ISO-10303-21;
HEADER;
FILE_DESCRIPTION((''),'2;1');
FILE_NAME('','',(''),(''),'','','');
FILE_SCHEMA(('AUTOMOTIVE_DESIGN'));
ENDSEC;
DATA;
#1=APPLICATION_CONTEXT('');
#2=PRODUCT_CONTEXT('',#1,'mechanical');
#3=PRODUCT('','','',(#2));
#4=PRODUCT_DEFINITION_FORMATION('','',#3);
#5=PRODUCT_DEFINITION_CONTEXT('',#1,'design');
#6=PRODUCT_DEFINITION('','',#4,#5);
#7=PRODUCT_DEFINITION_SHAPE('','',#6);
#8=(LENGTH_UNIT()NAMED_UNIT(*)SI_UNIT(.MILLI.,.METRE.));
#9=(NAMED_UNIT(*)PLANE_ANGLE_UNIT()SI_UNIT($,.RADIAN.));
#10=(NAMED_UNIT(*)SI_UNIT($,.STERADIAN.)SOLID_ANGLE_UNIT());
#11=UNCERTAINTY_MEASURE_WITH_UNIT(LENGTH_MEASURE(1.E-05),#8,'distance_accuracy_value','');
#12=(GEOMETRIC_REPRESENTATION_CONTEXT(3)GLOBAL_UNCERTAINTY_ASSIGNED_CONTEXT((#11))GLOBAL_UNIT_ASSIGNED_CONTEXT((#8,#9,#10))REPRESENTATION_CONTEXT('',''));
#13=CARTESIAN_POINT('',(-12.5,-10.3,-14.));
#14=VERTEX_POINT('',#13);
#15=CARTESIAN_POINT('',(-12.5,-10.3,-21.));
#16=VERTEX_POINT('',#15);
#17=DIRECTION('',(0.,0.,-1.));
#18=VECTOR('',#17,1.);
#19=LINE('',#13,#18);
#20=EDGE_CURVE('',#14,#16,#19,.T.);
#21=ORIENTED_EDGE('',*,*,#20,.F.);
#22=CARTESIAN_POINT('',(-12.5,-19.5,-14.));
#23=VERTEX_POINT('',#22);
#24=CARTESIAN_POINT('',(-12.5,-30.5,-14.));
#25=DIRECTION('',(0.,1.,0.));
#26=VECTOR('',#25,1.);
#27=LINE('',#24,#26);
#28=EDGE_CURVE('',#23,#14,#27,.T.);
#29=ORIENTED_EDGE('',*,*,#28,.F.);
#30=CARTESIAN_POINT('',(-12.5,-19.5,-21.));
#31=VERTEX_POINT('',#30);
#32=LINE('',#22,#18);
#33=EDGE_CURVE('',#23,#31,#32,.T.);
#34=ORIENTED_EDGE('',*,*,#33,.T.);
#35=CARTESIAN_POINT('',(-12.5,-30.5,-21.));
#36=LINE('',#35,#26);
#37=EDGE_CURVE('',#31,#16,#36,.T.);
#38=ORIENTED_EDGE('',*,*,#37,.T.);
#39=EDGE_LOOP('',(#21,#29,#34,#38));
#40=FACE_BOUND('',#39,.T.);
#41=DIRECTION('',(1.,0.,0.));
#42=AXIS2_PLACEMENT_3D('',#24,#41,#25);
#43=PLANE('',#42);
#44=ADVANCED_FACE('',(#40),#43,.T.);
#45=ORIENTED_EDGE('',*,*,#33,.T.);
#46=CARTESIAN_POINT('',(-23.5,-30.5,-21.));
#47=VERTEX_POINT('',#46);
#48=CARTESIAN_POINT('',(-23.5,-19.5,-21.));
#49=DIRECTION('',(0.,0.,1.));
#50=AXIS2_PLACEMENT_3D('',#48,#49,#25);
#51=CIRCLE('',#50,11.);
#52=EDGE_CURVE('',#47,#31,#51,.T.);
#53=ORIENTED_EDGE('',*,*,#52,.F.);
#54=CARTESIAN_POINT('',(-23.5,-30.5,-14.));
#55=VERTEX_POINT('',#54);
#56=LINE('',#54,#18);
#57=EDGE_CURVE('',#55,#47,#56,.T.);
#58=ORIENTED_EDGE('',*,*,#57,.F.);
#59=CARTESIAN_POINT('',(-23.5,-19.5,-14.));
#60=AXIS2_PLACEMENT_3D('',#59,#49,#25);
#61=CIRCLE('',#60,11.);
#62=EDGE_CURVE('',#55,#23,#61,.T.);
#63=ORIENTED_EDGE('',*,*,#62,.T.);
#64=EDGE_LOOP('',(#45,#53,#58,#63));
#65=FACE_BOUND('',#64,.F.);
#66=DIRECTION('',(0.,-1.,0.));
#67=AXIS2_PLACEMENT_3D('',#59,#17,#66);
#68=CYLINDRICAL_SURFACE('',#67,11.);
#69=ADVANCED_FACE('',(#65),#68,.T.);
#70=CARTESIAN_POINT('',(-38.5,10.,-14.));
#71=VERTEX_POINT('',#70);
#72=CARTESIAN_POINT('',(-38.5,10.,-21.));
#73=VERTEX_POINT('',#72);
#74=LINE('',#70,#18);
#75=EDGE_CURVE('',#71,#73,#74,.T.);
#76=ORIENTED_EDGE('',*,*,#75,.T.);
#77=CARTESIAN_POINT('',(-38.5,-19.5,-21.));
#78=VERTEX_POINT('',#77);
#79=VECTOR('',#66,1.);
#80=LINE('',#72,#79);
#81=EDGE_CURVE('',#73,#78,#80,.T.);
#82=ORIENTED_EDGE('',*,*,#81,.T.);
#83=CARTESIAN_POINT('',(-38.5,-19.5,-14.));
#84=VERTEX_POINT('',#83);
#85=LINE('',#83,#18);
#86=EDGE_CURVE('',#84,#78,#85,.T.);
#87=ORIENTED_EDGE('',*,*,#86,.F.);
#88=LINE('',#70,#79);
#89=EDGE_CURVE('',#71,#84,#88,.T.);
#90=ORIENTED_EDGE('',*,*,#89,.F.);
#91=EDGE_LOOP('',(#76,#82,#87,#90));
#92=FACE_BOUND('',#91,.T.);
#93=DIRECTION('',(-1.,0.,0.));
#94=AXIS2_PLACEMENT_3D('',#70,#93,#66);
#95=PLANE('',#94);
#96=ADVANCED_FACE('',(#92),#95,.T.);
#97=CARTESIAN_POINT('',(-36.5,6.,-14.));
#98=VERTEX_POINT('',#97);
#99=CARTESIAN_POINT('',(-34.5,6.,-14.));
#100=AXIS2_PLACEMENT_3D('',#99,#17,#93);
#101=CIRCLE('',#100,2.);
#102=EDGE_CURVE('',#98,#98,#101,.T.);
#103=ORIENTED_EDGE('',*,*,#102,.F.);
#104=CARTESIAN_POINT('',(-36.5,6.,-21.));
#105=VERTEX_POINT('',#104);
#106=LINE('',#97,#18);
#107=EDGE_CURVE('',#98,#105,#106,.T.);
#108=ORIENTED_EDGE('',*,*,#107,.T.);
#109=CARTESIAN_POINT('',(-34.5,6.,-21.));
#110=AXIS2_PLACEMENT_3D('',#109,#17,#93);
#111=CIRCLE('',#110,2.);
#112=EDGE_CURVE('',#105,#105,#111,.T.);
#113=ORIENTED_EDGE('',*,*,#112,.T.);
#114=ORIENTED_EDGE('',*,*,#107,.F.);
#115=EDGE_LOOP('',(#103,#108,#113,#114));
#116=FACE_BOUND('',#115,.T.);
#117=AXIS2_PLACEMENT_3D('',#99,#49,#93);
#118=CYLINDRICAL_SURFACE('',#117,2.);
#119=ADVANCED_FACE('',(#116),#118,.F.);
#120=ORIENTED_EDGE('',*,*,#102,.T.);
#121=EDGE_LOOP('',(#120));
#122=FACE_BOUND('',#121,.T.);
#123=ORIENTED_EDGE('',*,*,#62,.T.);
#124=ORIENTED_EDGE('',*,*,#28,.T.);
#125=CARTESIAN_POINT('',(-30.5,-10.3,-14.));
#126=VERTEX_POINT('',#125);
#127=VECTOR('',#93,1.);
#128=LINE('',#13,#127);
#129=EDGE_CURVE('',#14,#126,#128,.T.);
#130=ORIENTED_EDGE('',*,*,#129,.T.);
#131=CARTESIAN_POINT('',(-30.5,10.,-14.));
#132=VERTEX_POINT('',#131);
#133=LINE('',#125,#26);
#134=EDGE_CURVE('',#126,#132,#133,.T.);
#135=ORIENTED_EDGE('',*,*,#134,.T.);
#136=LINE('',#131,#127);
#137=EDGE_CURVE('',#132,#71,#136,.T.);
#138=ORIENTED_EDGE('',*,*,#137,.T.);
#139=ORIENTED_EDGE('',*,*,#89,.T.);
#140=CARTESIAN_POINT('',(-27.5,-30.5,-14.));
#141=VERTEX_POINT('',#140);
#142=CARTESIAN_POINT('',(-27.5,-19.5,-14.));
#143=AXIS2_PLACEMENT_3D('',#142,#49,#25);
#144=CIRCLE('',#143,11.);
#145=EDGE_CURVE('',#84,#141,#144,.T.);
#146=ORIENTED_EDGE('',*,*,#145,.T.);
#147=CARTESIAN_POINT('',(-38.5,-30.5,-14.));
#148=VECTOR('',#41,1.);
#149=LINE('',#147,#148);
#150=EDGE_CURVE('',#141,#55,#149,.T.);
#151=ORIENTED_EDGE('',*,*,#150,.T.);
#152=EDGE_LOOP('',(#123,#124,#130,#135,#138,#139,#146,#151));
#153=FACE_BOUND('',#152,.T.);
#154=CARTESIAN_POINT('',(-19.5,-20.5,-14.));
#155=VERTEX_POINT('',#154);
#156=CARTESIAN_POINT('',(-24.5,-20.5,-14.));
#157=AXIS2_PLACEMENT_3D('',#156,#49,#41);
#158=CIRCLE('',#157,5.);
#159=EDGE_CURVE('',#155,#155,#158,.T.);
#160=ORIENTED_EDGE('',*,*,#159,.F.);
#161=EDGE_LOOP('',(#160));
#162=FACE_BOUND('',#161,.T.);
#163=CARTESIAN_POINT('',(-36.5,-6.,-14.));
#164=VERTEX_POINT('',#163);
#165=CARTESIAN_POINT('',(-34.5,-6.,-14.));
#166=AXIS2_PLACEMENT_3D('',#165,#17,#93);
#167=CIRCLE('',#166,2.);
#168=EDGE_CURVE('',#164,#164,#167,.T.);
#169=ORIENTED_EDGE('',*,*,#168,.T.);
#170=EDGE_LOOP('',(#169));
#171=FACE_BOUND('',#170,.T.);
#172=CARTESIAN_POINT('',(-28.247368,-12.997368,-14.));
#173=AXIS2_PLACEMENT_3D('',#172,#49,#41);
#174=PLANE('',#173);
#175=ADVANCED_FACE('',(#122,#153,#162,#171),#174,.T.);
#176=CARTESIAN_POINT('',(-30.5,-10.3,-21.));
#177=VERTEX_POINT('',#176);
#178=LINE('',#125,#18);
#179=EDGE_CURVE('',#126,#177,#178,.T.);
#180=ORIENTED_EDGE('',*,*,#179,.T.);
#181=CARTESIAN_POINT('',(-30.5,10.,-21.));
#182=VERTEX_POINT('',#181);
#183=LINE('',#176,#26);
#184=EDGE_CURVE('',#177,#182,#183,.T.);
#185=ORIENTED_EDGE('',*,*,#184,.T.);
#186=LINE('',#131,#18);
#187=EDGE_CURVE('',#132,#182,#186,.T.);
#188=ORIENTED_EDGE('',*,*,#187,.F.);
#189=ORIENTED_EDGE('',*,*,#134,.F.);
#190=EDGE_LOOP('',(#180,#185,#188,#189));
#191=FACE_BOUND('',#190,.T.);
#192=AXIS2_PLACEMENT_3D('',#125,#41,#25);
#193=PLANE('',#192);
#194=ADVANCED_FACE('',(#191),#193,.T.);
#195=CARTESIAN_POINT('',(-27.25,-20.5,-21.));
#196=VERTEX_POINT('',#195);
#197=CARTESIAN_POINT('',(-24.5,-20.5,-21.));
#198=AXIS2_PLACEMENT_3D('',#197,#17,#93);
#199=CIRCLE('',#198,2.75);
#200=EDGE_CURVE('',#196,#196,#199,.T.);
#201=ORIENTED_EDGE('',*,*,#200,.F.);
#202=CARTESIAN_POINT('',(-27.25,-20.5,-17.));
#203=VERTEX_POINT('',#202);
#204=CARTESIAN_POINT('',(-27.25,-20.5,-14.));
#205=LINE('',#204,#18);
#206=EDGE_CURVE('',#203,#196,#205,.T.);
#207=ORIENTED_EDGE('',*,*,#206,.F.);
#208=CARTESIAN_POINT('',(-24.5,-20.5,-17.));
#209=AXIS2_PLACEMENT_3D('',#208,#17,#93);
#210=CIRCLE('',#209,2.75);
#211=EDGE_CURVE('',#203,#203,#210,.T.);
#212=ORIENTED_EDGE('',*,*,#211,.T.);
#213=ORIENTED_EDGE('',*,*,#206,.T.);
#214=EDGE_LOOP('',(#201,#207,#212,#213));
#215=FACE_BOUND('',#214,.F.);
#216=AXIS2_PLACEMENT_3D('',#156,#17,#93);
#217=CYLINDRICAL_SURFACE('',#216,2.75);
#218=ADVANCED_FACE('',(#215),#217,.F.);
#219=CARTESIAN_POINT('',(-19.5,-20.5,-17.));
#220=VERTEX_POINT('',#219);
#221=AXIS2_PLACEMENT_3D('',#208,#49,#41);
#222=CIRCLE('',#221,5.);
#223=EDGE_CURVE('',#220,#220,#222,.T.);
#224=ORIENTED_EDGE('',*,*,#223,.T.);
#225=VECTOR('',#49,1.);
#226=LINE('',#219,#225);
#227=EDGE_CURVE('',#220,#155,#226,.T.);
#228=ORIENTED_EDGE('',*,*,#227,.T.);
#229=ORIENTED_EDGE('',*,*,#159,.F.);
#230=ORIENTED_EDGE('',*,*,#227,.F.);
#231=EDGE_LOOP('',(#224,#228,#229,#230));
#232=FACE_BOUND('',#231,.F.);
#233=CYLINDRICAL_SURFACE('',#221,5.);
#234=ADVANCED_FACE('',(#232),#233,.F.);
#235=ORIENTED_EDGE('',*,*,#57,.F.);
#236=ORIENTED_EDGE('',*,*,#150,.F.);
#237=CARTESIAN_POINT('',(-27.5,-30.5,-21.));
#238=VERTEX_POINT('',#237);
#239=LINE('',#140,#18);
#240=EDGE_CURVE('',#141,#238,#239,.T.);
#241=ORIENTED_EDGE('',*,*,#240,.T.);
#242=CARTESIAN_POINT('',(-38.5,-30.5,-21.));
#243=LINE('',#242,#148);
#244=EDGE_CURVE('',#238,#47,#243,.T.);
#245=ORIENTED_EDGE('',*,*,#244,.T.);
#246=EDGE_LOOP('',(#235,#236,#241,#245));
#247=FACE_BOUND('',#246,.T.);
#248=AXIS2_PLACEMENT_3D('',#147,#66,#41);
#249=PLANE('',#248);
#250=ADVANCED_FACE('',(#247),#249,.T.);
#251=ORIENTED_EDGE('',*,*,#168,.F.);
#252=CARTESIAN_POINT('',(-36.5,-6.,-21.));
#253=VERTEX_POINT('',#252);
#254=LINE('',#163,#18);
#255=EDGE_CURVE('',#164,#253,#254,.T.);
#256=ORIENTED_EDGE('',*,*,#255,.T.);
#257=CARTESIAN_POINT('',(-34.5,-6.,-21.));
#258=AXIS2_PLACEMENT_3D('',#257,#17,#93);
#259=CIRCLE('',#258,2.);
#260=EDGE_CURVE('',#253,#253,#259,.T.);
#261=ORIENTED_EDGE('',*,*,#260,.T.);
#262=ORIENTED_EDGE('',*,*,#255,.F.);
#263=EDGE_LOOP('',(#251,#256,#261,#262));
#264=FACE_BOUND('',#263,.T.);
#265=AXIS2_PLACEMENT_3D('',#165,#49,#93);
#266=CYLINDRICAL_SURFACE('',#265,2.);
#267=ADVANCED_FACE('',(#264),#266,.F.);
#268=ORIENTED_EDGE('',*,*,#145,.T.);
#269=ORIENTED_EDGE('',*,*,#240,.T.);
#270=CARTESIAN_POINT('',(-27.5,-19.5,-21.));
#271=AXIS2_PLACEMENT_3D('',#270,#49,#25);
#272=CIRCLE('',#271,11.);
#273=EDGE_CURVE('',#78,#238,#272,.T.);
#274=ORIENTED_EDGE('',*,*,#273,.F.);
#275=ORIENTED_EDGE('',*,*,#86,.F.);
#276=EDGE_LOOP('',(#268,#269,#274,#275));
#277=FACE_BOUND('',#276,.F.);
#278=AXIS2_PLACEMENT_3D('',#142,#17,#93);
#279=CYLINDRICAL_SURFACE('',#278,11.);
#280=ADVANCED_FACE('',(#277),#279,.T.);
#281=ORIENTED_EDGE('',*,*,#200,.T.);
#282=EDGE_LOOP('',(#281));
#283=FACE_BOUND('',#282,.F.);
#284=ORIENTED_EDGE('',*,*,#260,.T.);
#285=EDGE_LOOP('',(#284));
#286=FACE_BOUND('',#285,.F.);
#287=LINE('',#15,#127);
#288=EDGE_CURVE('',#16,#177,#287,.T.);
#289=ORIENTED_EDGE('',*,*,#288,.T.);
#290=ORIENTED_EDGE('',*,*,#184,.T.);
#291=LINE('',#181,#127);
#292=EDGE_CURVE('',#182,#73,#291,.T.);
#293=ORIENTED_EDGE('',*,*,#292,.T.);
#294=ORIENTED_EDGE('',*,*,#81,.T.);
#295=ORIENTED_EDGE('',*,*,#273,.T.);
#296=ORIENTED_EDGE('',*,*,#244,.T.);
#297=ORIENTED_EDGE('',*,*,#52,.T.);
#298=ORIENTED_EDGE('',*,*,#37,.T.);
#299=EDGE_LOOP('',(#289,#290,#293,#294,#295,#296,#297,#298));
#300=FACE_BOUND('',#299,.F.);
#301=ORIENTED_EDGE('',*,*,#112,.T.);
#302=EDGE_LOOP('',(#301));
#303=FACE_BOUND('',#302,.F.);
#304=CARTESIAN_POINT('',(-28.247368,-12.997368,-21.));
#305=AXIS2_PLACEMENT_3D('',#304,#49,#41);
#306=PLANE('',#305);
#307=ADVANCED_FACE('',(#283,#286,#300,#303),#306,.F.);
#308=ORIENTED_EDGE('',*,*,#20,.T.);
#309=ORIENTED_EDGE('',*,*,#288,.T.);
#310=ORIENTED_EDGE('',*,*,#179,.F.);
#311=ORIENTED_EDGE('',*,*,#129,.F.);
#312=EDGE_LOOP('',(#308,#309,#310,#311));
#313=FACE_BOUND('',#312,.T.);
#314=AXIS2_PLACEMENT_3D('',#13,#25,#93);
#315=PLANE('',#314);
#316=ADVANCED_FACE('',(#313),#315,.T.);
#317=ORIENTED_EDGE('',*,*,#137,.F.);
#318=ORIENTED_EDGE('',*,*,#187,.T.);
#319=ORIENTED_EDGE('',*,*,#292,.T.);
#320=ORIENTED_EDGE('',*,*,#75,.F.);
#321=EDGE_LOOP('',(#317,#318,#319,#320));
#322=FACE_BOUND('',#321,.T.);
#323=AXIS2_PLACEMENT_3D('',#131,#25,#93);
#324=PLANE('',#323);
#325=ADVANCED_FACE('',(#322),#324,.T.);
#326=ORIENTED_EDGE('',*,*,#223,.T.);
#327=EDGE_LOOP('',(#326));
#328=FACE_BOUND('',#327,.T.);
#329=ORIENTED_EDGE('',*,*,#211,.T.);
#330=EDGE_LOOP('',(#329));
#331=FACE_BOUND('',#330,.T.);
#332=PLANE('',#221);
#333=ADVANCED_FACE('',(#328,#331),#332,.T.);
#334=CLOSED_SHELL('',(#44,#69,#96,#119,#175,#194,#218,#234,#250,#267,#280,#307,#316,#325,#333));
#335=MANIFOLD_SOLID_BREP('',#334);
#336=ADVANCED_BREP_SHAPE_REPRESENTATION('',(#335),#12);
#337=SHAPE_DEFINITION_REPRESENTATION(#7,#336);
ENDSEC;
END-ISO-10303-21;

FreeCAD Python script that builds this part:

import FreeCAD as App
import Part
import Sketcher
from FreeCAD import Vector


def edges_at(feature, points):
    """Names of the edges that pass closest to the given points."""
    edges = feature.Shape.Edges
    near = lambda p: min(range(len(edges)), key=lambda i: edges[i].distToShape(Part.Vertex(*p))[0])
    return sorted({f"Edge{near(p) + 1}" for p in points})

doc = App.newDocument("Part")
body = doc.addObject("PartDesign::Body", "Body")

# Sketch on XY plane
sketch1 = body.newObject("Sketcher::SketchObject", "Sketch")
sketch1.AttachmentSupport = (doc.getObject("XY_Plane"), [""])
sketch1.MapMode = "FlatFace"
sketch1.addGeometry(Part.LineSegment(Vector(-29, -30.5, 0), Vector(-29, 10, 0)), False)
sketch1.addGeometry(Part.LineSegment(Vector(-29, 10, 0), Vector(-21, 10, 0)), False)
sketch1.addGeometry(Part.LineSegment(Vector(-21, 10, 0), Vector(-21, -10.3, 0)), False)
sketch1.addGeometry(Part.LineSegment(Vector(-21, -10.3, 0), Vector(-3, -10.3, 0)), False)
sketch1.addGeometry(Part.LineSegment(Vector(-3, -10.3, 0), Vector(-3, -30.5, 0)), False)
sketch1.addGeometry(Part.LineSegment(Vector(-3, -30.5, 0), Vector(-29, -30.5, 0)), False)
sketch1.addGeometry(Part.Circle(Vector(-25, -6, 0), Vector(0, 0, 1), 2), False)
sketch1.addGeometry(Part.Circle(Vector(-25, 6, 0), Vector(0, 0, 1), 2), False)
sketch1.addConstraint(Sketcher.Constraint("Coincident", 0, 2, 1, 1))
sketch1.addConstraint(Sketcher.Constraint("Coincident", 1, 2, 2, 1))
sketch1.addConstraint(Sketcher.Constraint("Coincident", 2, 2, 3, 1))
sketch1.addConstraint(Sketcher.Constraint("Coincident", 3, 2, 4, 1))
sketch1.addConstraint(Sketcher.Constraint("Coincident", 4, 2, 5, 1))
sketch1.addConstraint(Sketcher.Constraint("Coincident", 5, 2, 0, 1))
sketch1.addConstraint(Sketcher.Constraint("Vertical", 0))
sketch1.addConstraint(Sketcher.Constraint("Horizontal", 1))
sketch1.addConstraint(Sketcher.Constraint("Vertical", 2))
sketch1.addConstraint(Sketcher.Constraint("Horizontal", 3))
sketch1.addConstraint(Sketcher.Constraint("Vertical", 4))
sketch1.addConstraint(Sketcher.Constraint("Horizontal", 5))
sketch1.addConstraint(Sketcher.Constraint("Equal", 6, 7))
sketch1.addConstraint(Sketcher.Constraint("Symmetric", 6, 3, 7, 3, -1))
sketch1.addConstraint(Sketcher.Constraint("Diameter", 6, 4.0))
sketch1.addConstraint(Sketcher.Constraint("DistanceX", 1, 1, 1, 2, 8.0))
sketch1.addConstraint(Sketcher.Constraint("DistanceX", 3, 1, 3, 2, 18.0))
sketch1.addConstraint(Sketcher.Constraint("DistanceY", 0, 1, 0, 2, 40.5))
sketch1.addConstraint(Sketcher.Constraint("DistanceY", 2, 2, 2, 1, 20.3))
sketch1.addConstraint(Sketcher.Constraint("DistanceX", 6, 3, -1, 1, 25.0))
sketch1.addConstraint(Sketcher.Constraint("DistanceY", 6, 3, -1, 1, 6.0))
sketch1.addConstraint(Sketcher.Constraint("DistanceX", 0, 2, -1, 1, 29.0))
sketch1.addConstraint(Sketcher.Constraint("DistanceY", -1, 1, 0, 2, 10.0))
pad1 = body.newObject("PartDesign::Pad", "Pad")
pad1.Profile = sketch1
pad1.Length = 7
pad1.Reversed = True

# Sketch on XY plane
sketch2 = body.newObject("Sketcher::SketchObject", "Sketch001")
sketch2.AttachmentSupport = (doc.getObject("XY_Plane"), [""])
sketch2.MapMode = "FlatFace"
sketch2.addGeometry(Part.Circle(Vector(-15, -20.5, 0), Vector(0, 0, 1), 2.8), False)
sketch2.addConstraint(Sketcher.Constraint("Diameter", 0, 5.5))
sketch2.addConstraint(Sketcher.Constraint("DistanceX", 0, 3, -1, 1, 15.0))
sketch2.addConstraint(Sketcher.Constraint("DistanceY", 0, 3, -1, 1, 20.5))
doc.recompute()
hole = body.newObject("PartDesign::Hole", "Hole")
hole.Profile = sketch2
hole.ThreadType = "None"
hole.Diameter = 5.5
hole.DepthType = "Dimension"
hole.Depth = 25
hole.DrillPoint = "Flat"
hole.HoleCutType = "Counterbore"
hole.HoleCutDiameter = 10
hole.HoleCutDepth = 3
doc.recompute()

fillet = body.newObject("PartDesign::Fillet", "Fillet")
fillet.Base = (hole, edges_at(hole, [(-29, -30.5, -3.5), (-3, -30.5, -3.5)]))
fillet.Radius = 11
body2 = doc.addObject("PartDesign::Body", "Body001")
doc.recompute()

body.Placement = App.Placement(Vector(-9.5, 0, -14), App.Rotation(Vector(0, 0, 1), 0))
boolean = body2.newObject("PartDesign::Boolean", "Boolean")
boolean.Type = "Fuse"
boolean.addObjects([body])

doc.recompute()
